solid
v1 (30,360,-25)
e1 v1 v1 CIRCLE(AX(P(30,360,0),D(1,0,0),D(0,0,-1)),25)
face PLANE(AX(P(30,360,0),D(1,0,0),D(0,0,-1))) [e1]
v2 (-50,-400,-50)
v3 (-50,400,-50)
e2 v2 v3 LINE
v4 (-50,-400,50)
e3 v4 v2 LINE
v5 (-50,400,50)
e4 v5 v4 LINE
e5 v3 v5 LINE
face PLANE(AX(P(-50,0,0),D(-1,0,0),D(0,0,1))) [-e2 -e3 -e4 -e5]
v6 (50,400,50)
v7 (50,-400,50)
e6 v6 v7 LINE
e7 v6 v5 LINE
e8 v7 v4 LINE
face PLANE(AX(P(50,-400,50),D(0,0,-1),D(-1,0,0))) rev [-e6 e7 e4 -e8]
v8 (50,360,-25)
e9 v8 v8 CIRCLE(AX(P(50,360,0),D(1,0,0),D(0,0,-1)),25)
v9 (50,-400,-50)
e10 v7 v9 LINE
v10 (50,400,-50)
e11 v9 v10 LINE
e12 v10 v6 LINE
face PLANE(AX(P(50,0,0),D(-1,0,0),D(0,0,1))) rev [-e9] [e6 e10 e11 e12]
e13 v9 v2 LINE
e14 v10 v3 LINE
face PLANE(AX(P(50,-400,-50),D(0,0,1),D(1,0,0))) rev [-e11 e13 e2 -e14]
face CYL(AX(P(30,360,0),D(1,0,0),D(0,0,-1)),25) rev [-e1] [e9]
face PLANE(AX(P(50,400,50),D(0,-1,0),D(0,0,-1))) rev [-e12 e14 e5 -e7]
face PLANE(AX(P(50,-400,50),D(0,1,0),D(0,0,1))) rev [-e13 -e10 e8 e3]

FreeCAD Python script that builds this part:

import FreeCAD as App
import Part
import Sketcher

V = App.Vector

doc = App.newDocument("Part")
body = doc.addObject("PartDesign::Body", "Body")

sketch1 = body.newObject("Sketcher::SketchObject", "Sketch")
sketch1.AttachmentSupport = (doc.getObject("YZ_Plane"), [""])
sketch1.MapMode = "FlatFace"
sketch1.addGeometry([
    Part.LineSegment(V(400, 50, 0), V(-400, 50, 0)),
    Part.LineSegment(V(-400, 50, 0), V(-400, -50, 0)),
    Part.LineSegment(V(-400, -50, 0), V(400, -50, 0)),
    Part.LineSegment(V(400, -50, 0), V(400, 50, 0)),
], False)
sketch1.addConstraint([
    Sketcher.Constraint("Coincident", 0, 2, 1, 1),
    Sketcher.Constraint("Coincident", 1, 2, 2, 1),
    Sketcher.Constraint("Coincident", 2, 2, 3, 1),
    Sketcher.Constraint("Coincident", 3, 2, 0, 1),
    Sketcher.Constraint("Horizontal", 0),
    Sketcher.Constraint("Vertical", 1),
    Sketcher.Constraint("Horizontal", 2),
    Sketcher.Constraint("Vertical", 3),
    Sketcher.Constraint("Symmetric", 0, 2, 2, 2, -1, 1),
    Sketcher.Constraint("DistanceX", 0, 2, 0, 1, 800.0),
    Sketcher.Constraint("DistanceY", 1, 2, 1, 1, 100.0),
])
pad1 = body.newObject("PartDesign::Pad", "Pad")
pad1.Profile = sketch1
pad1.Length = 100
pad1.Midplane = True

sketch2 = body.newObject("Sketcher::SketchObject", "Sketch001")
sketch2.AttachmentSupport = (doc.getObject("YZ_Plane"), [""])
sketch2.MapMode = "FlatFace"
sketch2.AttachmentOffset = App.Placement(V(0, 0, 50), App.Rotation())
sketch2.addGeometry(Part.Circle(V(360, 0, 0), V(0, 0, 1), 25), False)
sketch2.addConstraint([
    Sketcher.Constraint("PointOnObject", 0, 3, -1),
    Sketcher.Constraint("Diameter", 0, 50.0),
    Sketcher.Constraint("DistanceX", -1, 1, 0, 3, 360.0),
])
pocket1 = body.newObject("PartDesign::Pocket", "Pocket")
pocket1.Profile = sketch2
pocket1.Length = 20

doc.recompute()
